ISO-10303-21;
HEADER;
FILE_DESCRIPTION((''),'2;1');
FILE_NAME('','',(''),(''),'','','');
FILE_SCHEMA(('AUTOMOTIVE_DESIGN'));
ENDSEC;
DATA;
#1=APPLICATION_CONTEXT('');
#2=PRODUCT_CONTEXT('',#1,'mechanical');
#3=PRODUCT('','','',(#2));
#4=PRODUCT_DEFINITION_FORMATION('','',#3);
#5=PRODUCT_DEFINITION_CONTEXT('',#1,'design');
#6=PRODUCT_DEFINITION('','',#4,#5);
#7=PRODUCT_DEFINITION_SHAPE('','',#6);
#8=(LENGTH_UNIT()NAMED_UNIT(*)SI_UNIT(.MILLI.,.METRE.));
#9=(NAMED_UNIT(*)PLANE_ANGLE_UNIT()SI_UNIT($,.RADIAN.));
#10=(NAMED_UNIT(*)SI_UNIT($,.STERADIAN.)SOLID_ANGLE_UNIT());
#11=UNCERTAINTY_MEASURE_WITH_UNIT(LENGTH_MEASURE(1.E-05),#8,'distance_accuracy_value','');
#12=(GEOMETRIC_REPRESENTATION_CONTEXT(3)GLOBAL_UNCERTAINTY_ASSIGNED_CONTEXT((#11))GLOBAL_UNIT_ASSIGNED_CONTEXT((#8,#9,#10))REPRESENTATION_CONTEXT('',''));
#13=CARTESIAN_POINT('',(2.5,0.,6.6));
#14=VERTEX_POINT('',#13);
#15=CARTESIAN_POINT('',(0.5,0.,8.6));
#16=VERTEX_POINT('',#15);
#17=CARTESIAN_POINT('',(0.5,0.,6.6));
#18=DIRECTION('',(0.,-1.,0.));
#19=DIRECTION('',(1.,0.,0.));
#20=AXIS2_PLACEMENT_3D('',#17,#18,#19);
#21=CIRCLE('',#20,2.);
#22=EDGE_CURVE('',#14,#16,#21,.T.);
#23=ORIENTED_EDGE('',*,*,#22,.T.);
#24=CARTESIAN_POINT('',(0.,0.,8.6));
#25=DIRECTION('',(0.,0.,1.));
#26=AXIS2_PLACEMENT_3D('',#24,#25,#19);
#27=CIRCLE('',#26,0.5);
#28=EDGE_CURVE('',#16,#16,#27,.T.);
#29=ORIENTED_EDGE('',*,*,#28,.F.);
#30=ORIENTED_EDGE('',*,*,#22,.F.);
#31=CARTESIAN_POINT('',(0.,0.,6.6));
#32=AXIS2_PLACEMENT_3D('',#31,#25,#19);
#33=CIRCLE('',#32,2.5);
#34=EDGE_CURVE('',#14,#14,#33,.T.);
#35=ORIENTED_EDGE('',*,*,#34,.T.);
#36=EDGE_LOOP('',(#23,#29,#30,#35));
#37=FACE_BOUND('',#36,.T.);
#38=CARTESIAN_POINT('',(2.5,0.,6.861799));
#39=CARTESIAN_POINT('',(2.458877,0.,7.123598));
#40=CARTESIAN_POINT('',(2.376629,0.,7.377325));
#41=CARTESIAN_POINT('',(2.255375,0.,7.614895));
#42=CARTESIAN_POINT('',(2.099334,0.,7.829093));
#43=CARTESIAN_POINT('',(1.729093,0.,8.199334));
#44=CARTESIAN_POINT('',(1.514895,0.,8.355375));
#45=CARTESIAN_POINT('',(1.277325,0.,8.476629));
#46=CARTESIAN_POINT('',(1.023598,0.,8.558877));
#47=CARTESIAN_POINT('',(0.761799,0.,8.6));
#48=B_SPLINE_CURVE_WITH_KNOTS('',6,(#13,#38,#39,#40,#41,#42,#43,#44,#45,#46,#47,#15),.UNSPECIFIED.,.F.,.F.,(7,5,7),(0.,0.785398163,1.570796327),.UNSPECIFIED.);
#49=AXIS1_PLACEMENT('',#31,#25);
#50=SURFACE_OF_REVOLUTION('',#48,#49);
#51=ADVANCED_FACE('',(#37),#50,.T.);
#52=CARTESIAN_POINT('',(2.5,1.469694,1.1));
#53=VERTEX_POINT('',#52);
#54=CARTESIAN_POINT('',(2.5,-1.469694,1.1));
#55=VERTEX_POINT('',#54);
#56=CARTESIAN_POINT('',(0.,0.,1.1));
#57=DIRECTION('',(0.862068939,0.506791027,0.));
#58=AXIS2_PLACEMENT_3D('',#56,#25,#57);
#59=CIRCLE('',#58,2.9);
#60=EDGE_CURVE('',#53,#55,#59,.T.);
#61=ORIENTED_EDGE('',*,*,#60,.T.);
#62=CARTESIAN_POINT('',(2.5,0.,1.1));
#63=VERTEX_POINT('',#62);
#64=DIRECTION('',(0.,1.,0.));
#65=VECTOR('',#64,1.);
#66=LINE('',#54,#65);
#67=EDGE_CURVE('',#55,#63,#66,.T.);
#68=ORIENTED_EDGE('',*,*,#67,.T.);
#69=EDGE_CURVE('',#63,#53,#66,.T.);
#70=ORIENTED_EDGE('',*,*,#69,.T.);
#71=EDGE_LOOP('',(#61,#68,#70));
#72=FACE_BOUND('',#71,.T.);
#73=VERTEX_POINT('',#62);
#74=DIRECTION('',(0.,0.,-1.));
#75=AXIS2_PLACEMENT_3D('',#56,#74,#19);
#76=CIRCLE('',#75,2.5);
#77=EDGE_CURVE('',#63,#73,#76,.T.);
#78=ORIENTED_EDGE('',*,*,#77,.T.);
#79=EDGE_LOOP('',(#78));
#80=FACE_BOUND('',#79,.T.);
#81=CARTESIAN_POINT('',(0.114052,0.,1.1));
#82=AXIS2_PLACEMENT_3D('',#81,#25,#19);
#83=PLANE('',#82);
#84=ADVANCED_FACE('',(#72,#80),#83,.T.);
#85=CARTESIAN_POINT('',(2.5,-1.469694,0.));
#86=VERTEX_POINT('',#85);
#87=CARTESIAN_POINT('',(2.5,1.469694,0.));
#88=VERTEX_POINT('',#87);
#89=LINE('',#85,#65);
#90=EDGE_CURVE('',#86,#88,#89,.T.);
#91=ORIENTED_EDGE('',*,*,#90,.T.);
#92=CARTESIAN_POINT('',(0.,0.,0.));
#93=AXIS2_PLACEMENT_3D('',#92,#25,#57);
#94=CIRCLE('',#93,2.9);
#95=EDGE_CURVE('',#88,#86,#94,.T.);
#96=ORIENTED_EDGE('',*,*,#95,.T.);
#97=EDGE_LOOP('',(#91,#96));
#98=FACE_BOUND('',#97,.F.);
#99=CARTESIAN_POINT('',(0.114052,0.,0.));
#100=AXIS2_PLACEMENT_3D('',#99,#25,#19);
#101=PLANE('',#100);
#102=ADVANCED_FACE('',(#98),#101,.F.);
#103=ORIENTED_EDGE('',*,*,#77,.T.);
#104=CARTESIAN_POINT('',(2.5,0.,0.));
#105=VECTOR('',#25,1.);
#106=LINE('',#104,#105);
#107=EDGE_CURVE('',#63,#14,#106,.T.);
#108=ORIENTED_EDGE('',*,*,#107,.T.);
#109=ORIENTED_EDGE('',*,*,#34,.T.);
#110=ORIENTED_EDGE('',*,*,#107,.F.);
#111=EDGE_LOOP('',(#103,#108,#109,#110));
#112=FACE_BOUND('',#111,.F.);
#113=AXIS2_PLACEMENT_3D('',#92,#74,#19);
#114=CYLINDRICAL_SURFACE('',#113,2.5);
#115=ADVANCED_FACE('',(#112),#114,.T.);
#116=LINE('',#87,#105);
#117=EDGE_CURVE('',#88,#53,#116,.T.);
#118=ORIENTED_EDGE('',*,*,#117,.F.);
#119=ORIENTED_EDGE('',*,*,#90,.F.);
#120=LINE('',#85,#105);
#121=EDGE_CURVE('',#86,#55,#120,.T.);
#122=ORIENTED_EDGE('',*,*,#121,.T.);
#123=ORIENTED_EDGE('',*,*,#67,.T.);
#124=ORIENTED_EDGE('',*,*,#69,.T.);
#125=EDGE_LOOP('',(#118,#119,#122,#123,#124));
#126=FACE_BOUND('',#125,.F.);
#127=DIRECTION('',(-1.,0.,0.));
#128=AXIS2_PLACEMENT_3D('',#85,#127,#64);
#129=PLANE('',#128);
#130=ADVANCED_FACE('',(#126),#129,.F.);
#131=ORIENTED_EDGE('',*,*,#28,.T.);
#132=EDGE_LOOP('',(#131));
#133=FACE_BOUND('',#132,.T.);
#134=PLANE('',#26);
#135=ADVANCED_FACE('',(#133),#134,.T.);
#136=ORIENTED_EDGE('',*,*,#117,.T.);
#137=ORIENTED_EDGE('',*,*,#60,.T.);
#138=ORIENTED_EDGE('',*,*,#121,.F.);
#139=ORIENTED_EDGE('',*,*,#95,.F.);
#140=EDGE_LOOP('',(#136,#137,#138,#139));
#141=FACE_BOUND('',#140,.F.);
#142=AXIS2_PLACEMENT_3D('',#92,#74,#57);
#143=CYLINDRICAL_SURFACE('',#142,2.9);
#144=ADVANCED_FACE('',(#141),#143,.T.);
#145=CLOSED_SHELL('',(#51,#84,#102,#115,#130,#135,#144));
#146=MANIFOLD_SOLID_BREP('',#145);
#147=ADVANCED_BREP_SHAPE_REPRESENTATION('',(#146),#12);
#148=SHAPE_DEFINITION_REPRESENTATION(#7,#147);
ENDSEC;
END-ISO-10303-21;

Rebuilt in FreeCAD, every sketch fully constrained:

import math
import FreeCAD as App
import Part
import Sketcher
Q = App.Units.Quantity


def edges_at(feature, points):
    """Names of the edges that pass closest to the given points."""
    edges = feature.Shape.Edges
    near = lambda p: min(range(len(edges)), key=lambda i: edges[i].distToShape(Part.Vertex(*p))[0])
    return sorted({f"Edge{near(p) + 1}" for p in points})

doc = App.newDocument("Part")
body = doc.addObject("PartDesign::Body", "Body")

# Sketch on XY plane
sketch1 = body.newObject("Sketcher::SketchObject", "Sketch")
sketch1.AttachmentSupport = (doc.getObject("XY_Plane"), [""])
sketch1.MapMode = "FlatFace"
sketch1.addGeometry(Part.Circle(App.Vector(0, 0, 0), App.Vector(0, 0, 1), 2.5), False)
sketch1.addConstraint(Sketcher.Constraint("Coincident", 0, 3, -1, 1))
sketch1.addConstraint(Sketcher.Constraint("Diameter", 0, Q("5 mm")))
pad1 = body.newObject("PartDesign::Pad", "Pad")
pad1.Profile = sketch1
pad1.Length = 8.6

# Sketch on XY plane
sketch2 = body.newObject("Sketcher::SketchObject", "Sketch001")
sketch2.AttachmentSupport = (doc.getObject("XY_Plane"), [""])
sketch2.MapMode = "FlatFace"
sketch2.addGeometry(Part.LineSegment(App.Vector(2.5, -1.5, 0), App.Vector(2.5, 1.5, 0)), False)
sketch2.addGeometry(Part.ArcOfCircle(Part.Circle(App.Vector(0, 0, 0), App.Vector(0, 0, 1), 2.9), math.radians(30), math.radians(330)), False)
sketch2.addConstraint(Sketcher.Constraint("Coincident", 0, 1, 1, 2))
sketch2.addConstraint(Sketcher.Constraint("Coincident", 1, 1, 0, 2))
sketch2.addConstraint(Sketcher.Constraint("Vertical", 0))
sketch2.addConstraint(Sketcher.Constraint("Coincident", 1, 3, -1, 1))
sketch2.addConstraint(Sketcher.Constraint("Radius", 1, Q("2.9 mm")))
sketch2.addConstraint(Sketcher.Constraint("DistanceX", -1, 1, 0, 1, Q("2.5 mm")))
pad2 = body.newObject("PartDesign::Pad", "Pad001")
pad2.Profile = sketch2
pad2.Length = 1.1
doc.recompute()

fillet = body.newObject("PartDesign::Fillet", "Fillet")
fillet.Base = (pad2, edges_at(pad2, [(-2.5, 0, 8.6)]))
fillet.Radius = 2

doc.recompute()
